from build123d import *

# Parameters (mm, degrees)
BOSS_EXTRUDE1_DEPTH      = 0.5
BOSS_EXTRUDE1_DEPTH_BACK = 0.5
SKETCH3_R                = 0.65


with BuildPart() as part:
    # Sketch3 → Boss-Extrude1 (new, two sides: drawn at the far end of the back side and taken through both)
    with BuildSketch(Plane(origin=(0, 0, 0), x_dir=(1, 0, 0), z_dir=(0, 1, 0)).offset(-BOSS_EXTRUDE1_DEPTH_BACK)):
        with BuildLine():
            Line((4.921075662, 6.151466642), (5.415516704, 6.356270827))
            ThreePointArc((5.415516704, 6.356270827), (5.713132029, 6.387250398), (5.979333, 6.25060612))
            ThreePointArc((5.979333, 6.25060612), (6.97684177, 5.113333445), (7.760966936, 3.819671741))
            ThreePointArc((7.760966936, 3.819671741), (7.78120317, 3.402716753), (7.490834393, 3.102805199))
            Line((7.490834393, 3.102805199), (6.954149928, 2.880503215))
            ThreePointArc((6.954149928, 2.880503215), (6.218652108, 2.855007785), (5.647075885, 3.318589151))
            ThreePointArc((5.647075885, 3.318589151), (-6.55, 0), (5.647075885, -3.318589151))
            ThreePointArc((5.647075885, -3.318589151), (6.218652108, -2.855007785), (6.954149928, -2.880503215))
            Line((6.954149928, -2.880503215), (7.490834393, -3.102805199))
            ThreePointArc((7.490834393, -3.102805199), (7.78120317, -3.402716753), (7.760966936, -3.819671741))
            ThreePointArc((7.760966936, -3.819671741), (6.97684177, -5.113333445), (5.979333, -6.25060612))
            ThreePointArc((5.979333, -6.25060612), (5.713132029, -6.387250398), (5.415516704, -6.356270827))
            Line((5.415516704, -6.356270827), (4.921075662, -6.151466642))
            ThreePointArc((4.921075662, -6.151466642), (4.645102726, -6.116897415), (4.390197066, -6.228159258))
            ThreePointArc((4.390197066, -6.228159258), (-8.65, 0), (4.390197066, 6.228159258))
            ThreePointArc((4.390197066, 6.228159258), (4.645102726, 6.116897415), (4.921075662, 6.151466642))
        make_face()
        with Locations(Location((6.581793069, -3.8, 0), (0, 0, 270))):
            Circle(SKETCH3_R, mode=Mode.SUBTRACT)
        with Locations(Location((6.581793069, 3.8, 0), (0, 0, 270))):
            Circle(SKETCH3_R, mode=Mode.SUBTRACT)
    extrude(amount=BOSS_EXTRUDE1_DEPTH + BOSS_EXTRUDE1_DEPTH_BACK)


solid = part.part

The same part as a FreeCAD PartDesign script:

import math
import FreeCAD as App
import Part
import Sketcher
Q = App.Units.Quantity

doc = App.newDocument("Part")
body = doc.addObject("PartDesign::Body", "Body")

# Sketch on XZ plane
sketch1 = body.newObject("Sketcher::SketchObject", "Sketch")
sketch1.AttachmentSupport = (doc.getObject("XZ_Plane"), [""])
sketch1.MapMode = "FlatFace"
sketch1.addGeometry(Part.LineSegment(App.Vector(5.415517, -6.356271, 0), App.Vector(4.921076, -6.151467, 0)), False)
sketch1.addGeometry(Part.ArcOfCircle(Part.Circle(App.Vector(4.720167, -6.636503, 0), App.Vector(0, 0, 1), 0.525), math.radians(67.5), math.radians(128.940565)), False)
sketch1.addGeometry(Part.ArcOfCircle(Part.Circle(App.Vector(-0.642579, 0, 0), App.Vector(0, 0, 1), 8.007421), math.radians(51.059435), math.radians(308.940565)), False)
sketch1.addGeometry(Part.ArcOfCircle(Part.Circle(App.Vector(4.720167, 6.636503, 0), App.Vector(0, 0, 1), 0.525), math.radians(-128.940565), math.radians(-67.5)), False)
sketch1.addGeometry(Part.LineSegment(App.Vector(4.921076, 6.151467, 0), App.Vector(5.415517, 6.356271, 0)), False)
sketch1.addGeometry(Part.ArcOfCircle(Part.Circle(App.Vector(5.616426, 5.871234, 0), App.Vector(0, 0, 1), 0.525), math.radians(46.270673), math.radians(112.5)), False)
sketch1.addGeometry(Part.ArcOfCircle(Part.Circle(App.Vector(0, 0, 0), App.Vector(0, 0, 1), 8.65), math.radians(26.20477), math.radians(46.270673)), False)
sketch1.addGeometry(Part.ArcOfCircle(Part.Circle(App.Vector(7.289926, 3.587842, 0), App.Vector(0, 0, 1), 0.525), math.radians(-67.5), math.radians(26.20477)), False)
sketch1.addGeometry(Part.LineSegment(App.Vector(7.490834, 3.102805, 0), App.Vector(6.95415, 2.880503, 0)), False)
sketch1.addGeometry(Part.ArcOfCircle(Part.Circle(App.Vector(6.552332, 3.850577, 0), App.Vector(0, 0, 1), 1.05), math.radians(-149.558734), math.radians(-67.5)), False)
sketch1.addGeometry(Part.ArcOfCircle(Part.Circle(App.Vector(0, 0, 0), App.Vector(0, 0, 1), 6.55), math.radians(30.441266), math.radians(329.558734)), False)
sketch1.addGeometry(Part.ArcOfCircle(Part.Circle(App.Vector(6.552332, -3.850577, 0), App.Vector(0, 0, 1), 1.05), math.radians(67.5), math.radians(149.558734)), False)
sketch1.addGeometry(Part.LineSegment(App.Vector(6.95415, -2.880503, 0), App.Vector(7.490834, -3.102805, 0)), False)
sketch1.addGeometry(Part.ArcOfCircle(Part.Circle(App.Vector(7.289926, -3.587842, 0), App.Vector(0, 0, 1), 0.525), math.radians(-26.20477), math.radians(67.5)), False)
sketch1.addGeometry(Part.ArcOfCircle(Part.Circle(App.Vector(0, 0, 0), App.Vector(0, 0, 1), 8.65), math.radians(-46.270673), math.radians(-26.20477)), False)
sketch1.addGeometry(Part.ArcOfCircle(Part.Circle(App.Vector(5.616426, -5.871234, 0), App.Vector(0, 0, 1), 0.525), math.radians(-112.5), math.radians(-46.270673)), False)
sketch1.addGeometry(Part.Circle(App.Vector(6.581793, 3.8, 0), App.Vector(0, 0, 1), 0.65), False)
sketch1.addGeometry(Part.Circle(App.Vector(6.581793, -3.8, 0), App.Vector(0, 0, 1), 0.65), False)
sketch1.addConstraint(Sketcher.Constraint("Tangent", 0, 2, 1, 1))
sketch1.addConstraint(Sketcher.Constraint("Tangent", 1, 2, 2, 2))
sketch1.addConstraint(Sketcher.Constraint("Tangent", 2, 1, 3, 1))
sketch1.addConstraint(Sketcher.Constraint("Tangent", 3, 2, 4, 1))
sketch1.addConstraint(Sketcher.Constraint("Tangent", 4, 2, 5, 2))
sketch1.addConstraint(Sketcher.Constraint("Tangent", 5, 1, 6, 2))
sketch1.addConstraint(Sketcher.Constraint("Tangent", 6, 1, 7, 2))
sketch1.addConstraint(Sketcher.Constraint("Tangent", 7, 1, 8, 1))
sketch1.addConstraint(Sketcher.Constraint("Tangent", 8, 2, 9, 2))
sketch1.addConstraint(Sketcher.Constraint("Tangent", 9, 1, 10, 1))
sketch1.addConstraint(Sketcher.Constraint("Tangent", 10, 2, 11, 2))
sketch1.addConstraint(Sketcher.Constraint("Tangent", 11, 1, 12, 1))
sketch1.addConstraint(Sketcher.Constraint("Tangent", 12, 2, 13, 2))
sketch1.addConstraint(Sketcher.Constraint("Tangent", 13, 1, 14, 2))
sketch1.addConstraint(Sketcher.Constraint("Tangent", 14, 1, 15, 2))
sketch1.addConstraint(Sketcher.Constraint("Tangent", 15, 1, 0, 1))
sketch1.addConstraint(Sketcher.Constraint("Coincident", 6, 3, -1, 1))
sketch1.addConstraint(Sketcher.Constraint("Coincident", 10, 3, -1, 1))
sketch1.addConstraint(Sketcher.Constraint("Coincident", 14, 3, -1, 1))
sketch1.addConstraint(Sketcher.Constraint("Equal", 1, 3))
sketch1.addConstraint(Sketcher.Constraint("Equal", 3, 5))
sketch1.addConstraint(Sketcher.Constraint("Equal", 5, 7))
sketch1.addConstraint(Sketcher.Constraint("Equal", 9, 11))
sketch1.addConstraint(Sketcher.Constraint("Equal", 7, 13))
sketch1.addConstraint(Sketcher.Constraint("Equal", 6, 14))
sketch1.addConstraint(Sketcher.Constraint("Equal", 13, 15))
sketch1.addConstraint(Sketcher.Constraint("Equal", 16, 17))
sketch1.addConstraint(Sketcher.Constraint("Symmetric", 1, 3, 3, 3, -1))
sketch1.addConstraint(Sketcher.Constraint("Symmetric", 16, 3, 17, 3, -1))
sketch1.addConstraint(Sketcher.Constraint("Symmetric", 8, 2, 11, 1, -1))
sketch1.addConstraint(Sketcher.Constraint("Parallel", 4, 8))
sketch1.addConstraint(Sketcher.Constraint("Parallel", 0, 12))
sketch1.addConstraint(Sketcher.Constraint("Diameter", 16, 1.3))
sketch1.addConstraint(Sketcher.Constraint("Radius", 6, 8.65))
sketch1.addConstraint(Sketcher.Constraint("Radius", 9, 1.05))
sketch1.addConstraint(Sketcher.Constraint("Radius", 10, 6.55))
sketch1.addConstraint(Sketcher.Constraint("Angle", 0, Q("157.5 deg")))
sketch1.addConstraint(Sketcher.Constraint("Radius", 1, 0.525))
sketch1.addConstraint(Sketcher.Constraint("DistanceY", -1, 1, 16, 3, 3.8))
sketch1.addConstraint(Sketcher.Constraint("Radius", 2, 8.007421))
sketch1.addConstraint(Sketcher.Constraint("DistanceX", 0, 2, 10, 2, 0.726))
sketch1.addConstraint(Sketcher.Constraint("DistanceX", 14, 1, 11, 3, 0.572999))
sketch1.addConstraint(Sketcher.Constraint("DistanceX", 5, 3, 7, 3, 1.6735))
sketch1.addConstraint(Sketcher.Constraint("DistanceX", 9, 3, 16, 3, 0.029461))
pad1 = body.newObject("PartDesign::Pad", "Pad")
pad1.Profile = sketch1
pad1.Type = "TwoLengths"
pad1.Length = 0.5
pad1.Length2 = 0.5
pad1.Reversed = True

doc.recompute()
